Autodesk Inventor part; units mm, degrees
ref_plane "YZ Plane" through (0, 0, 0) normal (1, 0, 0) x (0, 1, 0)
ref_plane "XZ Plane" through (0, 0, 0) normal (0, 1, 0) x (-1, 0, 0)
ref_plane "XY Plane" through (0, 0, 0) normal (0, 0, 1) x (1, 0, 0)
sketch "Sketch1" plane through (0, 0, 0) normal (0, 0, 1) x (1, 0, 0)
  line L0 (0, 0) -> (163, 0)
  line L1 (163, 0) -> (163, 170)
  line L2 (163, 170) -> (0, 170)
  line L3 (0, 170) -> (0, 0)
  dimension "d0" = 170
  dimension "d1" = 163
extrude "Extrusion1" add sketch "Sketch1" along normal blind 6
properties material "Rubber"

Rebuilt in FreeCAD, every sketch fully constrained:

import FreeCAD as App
import Part
import Sketcher
Q = App.Units.Quantity


def add_polygon(sketch, points):
    """Adds a closed chain of lines whose ends are joined by coincident constraints."""
    first, n = sketch.GeometryCount, len(points)
    for a, b in zip(points, points[1:] + points[:1]):
        sketch.addGeometry(Part.LineSegment(App.Vector(*a, 0), App.Vector(*b, 0)), False)
    for i in range(n):
        sketch.addConstraint(Sketcher.Constraint("Coincident", first + i, 2, first + (i + 1) % n, 1))

doc = App.newDocument("Part")
body = doc.addObject("PartDesign::Body", "Body")

# Sketch on XY plane
sketch1 = body.newObject("Sketcher::SketchObject", "Sketch")
sketch1.AttachmentSupport = (doc.getObject("XY_Plane"), [""])
sketch1.MapMode = "FlatFace"
add_polygon(sketch1, [(0, 170), (0, 0), (163, 0), (163, 170)])  # lines 0-3
sketch1.addConstraint([
    Sketcher.Constraint("Vertical", 0),
    Sketcher.Constraint("Horizontal", 1),
    Sketcher.Constraint("Vertical", 2),
    Sketcher.Constraint("Horizontal", 3),
    Sketcher.Constraint("Coincident", 0, 2, -1, 1),
    Sketcher.Constraint("DistanceX", 1, 1, 1, 2, Q("163 mm")),
    Sketcher.Constraint("DistanceY", 0, 2, 0, 1, Q("170 mm")),
])
pad1 = body.newObject("PartDesign::Pad", "Pad")
pad1.Profile = sketch1
pad1.Length = 6

doc.recompute()
